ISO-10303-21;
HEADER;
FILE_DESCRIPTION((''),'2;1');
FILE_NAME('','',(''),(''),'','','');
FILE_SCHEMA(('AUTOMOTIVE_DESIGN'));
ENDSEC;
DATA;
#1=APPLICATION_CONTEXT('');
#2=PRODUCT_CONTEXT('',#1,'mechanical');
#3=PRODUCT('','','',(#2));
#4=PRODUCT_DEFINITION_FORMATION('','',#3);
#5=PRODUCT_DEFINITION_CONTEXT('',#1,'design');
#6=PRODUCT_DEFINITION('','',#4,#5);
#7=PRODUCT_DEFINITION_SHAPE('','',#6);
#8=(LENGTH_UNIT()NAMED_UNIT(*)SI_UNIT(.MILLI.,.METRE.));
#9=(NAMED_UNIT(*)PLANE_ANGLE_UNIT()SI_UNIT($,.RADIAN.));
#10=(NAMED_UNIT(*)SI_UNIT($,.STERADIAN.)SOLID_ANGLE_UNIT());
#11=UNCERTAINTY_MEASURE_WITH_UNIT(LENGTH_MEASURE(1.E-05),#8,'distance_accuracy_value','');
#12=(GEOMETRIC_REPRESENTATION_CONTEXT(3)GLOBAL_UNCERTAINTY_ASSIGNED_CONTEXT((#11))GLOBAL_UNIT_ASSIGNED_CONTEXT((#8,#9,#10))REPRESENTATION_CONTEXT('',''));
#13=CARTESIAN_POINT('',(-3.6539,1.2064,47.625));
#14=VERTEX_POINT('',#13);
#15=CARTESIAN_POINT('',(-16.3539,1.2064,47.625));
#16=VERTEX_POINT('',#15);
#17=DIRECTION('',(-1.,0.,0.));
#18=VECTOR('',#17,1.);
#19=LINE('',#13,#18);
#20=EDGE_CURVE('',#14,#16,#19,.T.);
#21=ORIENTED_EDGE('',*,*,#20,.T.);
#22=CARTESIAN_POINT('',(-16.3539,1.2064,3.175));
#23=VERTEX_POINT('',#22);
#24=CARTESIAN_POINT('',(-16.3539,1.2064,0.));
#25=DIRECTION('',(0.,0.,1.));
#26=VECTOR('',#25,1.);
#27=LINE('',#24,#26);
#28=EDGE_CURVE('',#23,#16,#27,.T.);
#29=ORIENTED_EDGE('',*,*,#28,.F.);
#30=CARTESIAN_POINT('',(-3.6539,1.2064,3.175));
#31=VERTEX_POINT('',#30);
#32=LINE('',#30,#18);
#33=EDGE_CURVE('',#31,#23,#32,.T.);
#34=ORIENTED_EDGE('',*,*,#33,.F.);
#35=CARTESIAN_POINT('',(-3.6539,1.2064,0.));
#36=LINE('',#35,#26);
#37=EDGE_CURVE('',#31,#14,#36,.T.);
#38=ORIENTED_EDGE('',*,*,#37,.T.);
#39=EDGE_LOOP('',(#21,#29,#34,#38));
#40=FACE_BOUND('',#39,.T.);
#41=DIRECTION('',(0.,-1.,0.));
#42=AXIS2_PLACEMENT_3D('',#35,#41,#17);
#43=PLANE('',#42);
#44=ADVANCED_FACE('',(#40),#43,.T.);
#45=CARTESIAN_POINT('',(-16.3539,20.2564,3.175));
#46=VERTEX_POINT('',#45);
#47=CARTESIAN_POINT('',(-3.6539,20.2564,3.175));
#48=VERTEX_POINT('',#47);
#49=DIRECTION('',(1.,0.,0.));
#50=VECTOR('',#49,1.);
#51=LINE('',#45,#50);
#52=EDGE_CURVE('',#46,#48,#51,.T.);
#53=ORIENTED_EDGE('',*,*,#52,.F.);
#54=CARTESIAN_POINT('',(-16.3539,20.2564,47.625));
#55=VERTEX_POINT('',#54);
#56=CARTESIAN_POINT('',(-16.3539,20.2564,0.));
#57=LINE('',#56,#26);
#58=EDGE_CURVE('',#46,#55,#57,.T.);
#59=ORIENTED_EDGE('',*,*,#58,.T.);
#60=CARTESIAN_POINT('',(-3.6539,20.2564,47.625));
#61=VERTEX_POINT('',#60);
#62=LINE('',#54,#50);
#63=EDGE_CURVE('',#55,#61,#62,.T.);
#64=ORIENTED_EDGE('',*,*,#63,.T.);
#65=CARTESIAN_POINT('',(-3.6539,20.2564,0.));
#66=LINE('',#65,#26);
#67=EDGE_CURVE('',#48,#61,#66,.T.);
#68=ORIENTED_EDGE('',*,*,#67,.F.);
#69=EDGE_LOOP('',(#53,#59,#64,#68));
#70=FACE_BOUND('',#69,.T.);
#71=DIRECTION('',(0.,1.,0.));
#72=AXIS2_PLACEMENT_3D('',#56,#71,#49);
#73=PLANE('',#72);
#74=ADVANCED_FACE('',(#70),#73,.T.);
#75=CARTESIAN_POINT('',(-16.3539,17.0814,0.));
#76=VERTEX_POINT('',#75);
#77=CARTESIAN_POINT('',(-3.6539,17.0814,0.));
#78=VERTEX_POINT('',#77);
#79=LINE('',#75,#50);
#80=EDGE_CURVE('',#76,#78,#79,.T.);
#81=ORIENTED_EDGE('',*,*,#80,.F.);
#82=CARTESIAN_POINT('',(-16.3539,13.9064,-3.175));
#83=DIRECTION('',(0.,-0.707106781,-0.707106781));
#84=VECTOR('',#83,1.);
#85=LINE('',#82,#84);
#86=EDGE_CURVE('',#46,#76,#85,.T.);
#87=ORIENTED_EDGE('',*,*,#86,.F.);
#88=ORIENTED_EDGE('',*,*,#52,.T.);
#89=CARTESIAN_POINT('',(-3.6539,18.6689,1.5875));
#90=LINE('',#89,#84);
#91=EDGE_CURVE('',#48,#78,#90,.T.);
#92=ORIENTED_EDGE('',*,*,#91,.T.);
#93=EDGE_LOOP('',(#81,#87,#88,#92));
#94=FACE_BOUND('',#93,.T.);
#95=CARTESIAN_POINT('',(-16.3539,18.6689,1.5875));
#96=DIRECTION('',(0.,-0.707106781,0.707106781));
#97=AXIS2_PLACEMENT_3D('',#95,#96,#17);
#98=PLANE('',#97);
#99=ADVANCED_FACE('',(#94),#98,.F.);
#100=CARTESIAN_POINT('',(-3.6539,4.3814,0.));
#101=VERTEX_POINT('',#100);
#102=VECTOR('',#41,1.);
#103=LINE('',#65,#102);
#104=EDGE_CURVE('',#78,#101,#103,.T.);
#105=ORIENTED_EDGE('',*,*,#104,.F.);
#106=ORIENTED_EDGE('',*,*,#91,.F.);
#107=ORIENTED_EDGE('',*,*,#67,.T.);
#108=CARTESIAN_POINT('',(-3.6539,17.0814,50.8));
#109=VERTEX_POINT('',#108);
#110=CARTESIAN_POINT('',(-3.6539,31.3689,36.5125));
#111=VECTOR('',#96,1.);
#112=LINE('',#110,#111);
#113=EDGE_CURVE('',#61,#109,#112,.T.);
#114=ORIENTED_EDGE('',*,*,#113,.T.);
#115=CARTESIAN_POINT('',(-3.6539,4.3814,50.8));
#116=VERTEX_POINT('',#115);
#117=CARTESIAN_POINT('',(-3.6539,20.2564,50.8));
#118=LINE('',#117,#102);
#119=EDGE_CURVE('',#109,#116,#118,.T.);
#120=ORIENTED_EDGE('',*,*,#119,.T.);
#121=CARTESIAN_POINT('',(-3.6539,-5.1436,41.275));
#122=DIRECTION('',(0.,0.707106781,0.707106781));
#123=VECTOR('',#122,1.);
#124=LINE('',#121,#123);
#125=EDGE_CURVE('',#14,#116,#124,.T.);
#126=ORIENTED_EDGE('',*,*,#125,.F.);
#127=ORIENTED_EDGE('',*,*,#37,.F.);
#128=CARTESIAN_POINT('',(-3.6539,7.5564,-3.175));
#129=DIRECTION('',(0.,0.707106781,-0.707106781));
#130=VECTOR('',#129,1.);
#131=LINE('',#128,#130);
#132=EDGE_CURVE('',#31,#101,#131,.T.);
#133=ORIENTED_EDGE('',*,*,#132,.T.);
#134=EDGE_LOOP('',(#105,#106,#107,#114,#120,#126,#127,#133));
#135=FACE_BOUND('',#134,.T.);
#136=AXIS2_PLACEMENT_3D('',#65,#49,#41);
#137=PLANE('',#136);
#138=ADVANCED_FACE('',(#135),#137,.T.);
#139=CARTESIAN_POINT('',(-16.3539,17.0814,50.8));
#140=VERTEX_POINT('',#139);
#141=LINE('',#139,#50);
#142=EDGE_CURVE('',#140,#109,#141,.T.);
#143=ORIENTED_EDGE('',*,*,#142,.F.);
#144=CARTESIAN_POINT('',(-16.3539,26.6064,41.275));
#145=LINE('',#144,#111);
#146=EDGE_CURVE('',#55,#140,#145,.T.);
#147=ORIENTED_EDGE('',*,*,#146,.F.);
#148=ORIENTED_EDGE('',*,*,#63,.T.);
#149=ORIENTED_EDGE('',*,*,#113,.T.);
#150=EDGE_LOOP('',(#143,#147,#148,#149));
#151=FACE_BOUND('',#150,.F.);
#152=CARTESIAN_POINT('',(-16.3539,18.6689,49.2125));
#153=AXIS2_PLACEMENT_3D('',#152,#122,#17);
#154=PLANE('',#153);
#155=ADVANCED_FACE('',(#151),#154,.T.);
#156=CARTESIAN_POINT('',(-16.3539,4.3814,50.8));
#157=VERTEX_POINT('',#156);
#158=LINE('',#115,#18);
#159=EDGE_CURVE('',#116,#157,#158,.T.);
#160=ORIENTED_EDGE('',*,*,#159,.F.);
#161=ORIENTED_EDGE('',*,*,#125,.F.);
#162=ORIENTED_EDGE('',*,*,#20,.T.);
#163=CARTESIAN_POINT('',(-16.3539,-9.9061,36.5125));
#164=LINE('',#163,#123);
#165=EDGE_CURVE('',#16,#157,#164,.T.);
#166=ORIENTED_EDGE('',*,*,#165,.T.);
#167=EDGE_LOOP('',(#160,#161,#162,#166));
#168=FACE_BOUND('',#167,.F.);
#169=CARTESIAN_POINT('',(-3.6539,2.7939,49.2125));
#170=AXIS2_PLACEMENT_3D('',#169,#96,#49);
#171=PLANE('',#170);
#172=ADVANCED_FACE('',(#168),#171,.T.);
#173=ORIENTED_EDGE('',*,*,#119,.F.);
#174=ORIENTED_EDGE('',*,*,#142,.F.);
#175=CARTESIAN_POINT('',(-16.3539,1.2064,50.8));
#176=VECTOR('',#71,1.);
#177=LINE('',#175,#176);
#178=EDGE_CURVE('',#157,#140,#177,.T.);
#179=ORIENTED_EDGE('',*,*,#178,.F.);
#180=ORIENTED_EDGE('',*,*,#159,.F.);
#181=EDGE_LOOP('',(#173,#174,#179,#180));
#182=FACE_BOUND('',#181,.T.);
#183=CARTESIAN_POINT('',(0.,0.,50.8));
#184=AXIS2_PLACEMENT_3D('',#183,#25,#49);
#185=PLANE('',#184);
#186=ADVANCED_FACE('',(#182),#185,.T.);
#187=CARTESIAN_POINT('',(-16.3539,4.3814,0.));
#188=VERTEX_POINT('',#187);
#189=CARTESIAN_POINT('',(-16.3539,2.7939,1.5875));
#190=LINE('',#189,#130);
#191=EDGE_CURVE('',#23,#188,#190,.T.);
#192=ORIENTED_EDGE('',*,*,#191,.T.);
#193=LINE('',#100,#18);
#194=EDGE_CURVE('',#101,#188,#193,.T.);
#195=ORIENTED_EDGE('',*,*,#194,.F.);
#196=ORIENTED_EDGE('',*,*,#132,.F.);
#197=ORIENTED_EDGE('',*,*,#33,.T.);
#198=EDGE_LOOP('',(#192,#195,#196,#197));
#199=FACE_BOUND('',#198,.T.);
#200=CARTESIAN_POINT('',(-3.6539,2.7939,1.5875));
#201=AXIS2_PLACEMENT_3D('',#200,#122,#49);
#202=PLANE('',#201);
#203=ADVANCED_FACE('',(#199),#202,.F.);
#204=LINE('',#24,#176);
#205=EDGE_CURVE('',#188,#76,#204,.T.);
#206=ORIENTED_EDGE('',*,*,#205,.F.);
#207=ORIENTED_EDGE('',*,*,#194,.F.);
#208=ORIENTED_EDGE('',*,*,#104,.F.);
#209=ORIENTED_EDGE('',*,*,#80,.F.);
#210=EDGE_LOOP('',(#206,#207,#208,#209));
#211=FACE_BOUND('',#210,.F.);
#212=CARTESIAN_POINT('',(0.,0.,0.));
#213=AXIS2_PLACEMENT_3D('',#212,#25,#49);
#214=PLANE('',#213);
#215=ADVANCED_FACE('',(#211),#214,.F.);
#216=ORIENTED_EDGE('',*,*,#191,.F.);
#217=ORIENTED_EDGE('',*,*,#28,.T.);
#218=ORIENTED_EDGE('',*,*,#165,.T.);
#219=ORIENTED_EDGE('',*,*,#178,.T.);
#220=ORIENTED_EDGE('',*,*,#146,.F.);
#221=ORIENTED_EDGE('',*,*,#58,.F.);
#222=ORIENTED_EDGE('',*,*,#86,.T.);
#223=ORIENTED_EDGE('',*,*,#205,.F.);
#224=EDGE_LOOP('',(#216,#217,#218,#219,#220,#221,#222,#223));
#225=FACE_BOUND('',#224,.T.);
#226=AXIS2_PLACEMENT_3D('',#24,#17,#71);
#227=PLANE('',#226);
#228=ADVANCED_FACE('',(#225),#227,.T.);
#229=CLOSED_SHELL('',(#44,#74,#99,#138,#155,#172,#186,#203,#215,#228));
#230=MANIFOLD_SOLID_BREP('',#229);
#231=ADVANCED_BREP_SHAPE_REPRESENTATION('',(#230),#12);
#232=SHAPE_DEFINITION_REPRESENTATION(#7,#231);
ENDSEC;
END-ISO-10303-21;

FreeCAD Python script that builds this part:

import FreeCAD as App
import Part
import Sketcher
from FreeCAD import Vector
Q = App.Units.Quantity


def edges_at(feature, points):
    """Names of the edges that pass closest to the given points."""
    edges = feature.Shape.Edges
    near = lambda p: min(range(len(edges)), key=lambda i: edges[i].distToShape(Part.Vertex(*p))[0])
    return sorted({f"Edge{near(p) + 1}" for p in points})

doc = App.newDocument("Part")
params = doc.addObject("Spreadsheet::Sheet", "Params")
for row, (alias, value) in enumerate([
    ("sketch1_width", "0.5 in"),
    ("sketch1_height", "0.75 in"),
    ("pad1_length", "2 in"),
    ("chamfer_size", "0.125 in"),
], start=1):
    params.set(f"A{row}", alias)
    params.set(f"B{row}", "=" + value)
    params.setAlias(f"B{row}", alias)

body = doc.addObject("PartDesign::Body", "Body")

sketch1 = body.newObject("Sketcher::SketchObject", "Sketch")
sketch1.AttachmentSupport = (doc.getObject("XY_Plane"), [""])
sketch1.MapMode = "FlatFace"
sketch1.addGeometry(Part.LineSegment(Vector(-4, 20, 0), Vector(-16, 20, 0)), False)
sketch1.addGeometry(Part.LineSegment(Vector(-16, 20, 0), Vector(-16, 1, 0)), False)
sketch1.addGeometry(Part.LineSegment(Vector(-16, 1, 0), Vector(-4, 1, 0)), False)
sketch1.addGeometry(Part.LineSegment(Vector(-4, 1, 0), Vector(-4, 20, 0)), False)
sketch1.addConstraint(Sketcher.Constraint("Coincident", 0, 2, 1, 1))
sketch1.addConstraint(Sketcher.Constraint("Coincident", 1, 2, 2, 1))
sketch1.addConstraint(Sketcher.Constraint("Coincident", 2, 2, 3, 1))
sketch1.addConstraint(Sketcher.Constraint("Coincident", 3, 2, 0, 1))
sketch1.addConstraint(Sketcher.Constraint("Horizontal", 0))
sketch1.addConstraint(Sketcher.Constraint("Vertical", 1))
sketch1.addConstraint(Sketcher.Constraint("Horizontal", 2))
sketch1.addConstraint(Sketcher.Constraint("Vertical", 3))
sketch1.addConstraint(Sketcher.Constraint("DistanceX", 0, 2, 0, 1, Q("0.5 in")))
sketch1.addConstraint(Sketcher.Constraint("DistanceY", 1, 2, 1, 1, Q("0.75 in")))
sketch1.addConstraint(Sketcher.Constraint("DistanceY", -1, 1, 0, 2, Q("0.7975 in")))
sketch1.addConstraint(Sketcher.Constraint("DistanceX", 0, 2, -1, 1, Q("16.354 mm")))
sketch1.setExpression("Constraints[8]", "Params.sketch1_width")
sketch1.setExpression("Constraints[9]", "Params.sketch1_height")
pad1 = body.newObject("PartDesign::Pad", "Pad")
pad1.Profile = sketch1
pad1.setExpression("Length", "Params.pad1_length")
doc.recompute()

chamfer = body.newObject("PartDesign::Chamfer", "Chamfer")
chamfer.Base = (pad1, edges_at(pad1, [
    (-10.004, 20.256, 50.8),
    (-10.004, 20.256, 0),
    (-10.004, 1.206, 50.8),
    (-10.004, 1.206, 0),
]))
chamfer.setExpression("Size", "Params.chamfer_size")

doc.recompute()
